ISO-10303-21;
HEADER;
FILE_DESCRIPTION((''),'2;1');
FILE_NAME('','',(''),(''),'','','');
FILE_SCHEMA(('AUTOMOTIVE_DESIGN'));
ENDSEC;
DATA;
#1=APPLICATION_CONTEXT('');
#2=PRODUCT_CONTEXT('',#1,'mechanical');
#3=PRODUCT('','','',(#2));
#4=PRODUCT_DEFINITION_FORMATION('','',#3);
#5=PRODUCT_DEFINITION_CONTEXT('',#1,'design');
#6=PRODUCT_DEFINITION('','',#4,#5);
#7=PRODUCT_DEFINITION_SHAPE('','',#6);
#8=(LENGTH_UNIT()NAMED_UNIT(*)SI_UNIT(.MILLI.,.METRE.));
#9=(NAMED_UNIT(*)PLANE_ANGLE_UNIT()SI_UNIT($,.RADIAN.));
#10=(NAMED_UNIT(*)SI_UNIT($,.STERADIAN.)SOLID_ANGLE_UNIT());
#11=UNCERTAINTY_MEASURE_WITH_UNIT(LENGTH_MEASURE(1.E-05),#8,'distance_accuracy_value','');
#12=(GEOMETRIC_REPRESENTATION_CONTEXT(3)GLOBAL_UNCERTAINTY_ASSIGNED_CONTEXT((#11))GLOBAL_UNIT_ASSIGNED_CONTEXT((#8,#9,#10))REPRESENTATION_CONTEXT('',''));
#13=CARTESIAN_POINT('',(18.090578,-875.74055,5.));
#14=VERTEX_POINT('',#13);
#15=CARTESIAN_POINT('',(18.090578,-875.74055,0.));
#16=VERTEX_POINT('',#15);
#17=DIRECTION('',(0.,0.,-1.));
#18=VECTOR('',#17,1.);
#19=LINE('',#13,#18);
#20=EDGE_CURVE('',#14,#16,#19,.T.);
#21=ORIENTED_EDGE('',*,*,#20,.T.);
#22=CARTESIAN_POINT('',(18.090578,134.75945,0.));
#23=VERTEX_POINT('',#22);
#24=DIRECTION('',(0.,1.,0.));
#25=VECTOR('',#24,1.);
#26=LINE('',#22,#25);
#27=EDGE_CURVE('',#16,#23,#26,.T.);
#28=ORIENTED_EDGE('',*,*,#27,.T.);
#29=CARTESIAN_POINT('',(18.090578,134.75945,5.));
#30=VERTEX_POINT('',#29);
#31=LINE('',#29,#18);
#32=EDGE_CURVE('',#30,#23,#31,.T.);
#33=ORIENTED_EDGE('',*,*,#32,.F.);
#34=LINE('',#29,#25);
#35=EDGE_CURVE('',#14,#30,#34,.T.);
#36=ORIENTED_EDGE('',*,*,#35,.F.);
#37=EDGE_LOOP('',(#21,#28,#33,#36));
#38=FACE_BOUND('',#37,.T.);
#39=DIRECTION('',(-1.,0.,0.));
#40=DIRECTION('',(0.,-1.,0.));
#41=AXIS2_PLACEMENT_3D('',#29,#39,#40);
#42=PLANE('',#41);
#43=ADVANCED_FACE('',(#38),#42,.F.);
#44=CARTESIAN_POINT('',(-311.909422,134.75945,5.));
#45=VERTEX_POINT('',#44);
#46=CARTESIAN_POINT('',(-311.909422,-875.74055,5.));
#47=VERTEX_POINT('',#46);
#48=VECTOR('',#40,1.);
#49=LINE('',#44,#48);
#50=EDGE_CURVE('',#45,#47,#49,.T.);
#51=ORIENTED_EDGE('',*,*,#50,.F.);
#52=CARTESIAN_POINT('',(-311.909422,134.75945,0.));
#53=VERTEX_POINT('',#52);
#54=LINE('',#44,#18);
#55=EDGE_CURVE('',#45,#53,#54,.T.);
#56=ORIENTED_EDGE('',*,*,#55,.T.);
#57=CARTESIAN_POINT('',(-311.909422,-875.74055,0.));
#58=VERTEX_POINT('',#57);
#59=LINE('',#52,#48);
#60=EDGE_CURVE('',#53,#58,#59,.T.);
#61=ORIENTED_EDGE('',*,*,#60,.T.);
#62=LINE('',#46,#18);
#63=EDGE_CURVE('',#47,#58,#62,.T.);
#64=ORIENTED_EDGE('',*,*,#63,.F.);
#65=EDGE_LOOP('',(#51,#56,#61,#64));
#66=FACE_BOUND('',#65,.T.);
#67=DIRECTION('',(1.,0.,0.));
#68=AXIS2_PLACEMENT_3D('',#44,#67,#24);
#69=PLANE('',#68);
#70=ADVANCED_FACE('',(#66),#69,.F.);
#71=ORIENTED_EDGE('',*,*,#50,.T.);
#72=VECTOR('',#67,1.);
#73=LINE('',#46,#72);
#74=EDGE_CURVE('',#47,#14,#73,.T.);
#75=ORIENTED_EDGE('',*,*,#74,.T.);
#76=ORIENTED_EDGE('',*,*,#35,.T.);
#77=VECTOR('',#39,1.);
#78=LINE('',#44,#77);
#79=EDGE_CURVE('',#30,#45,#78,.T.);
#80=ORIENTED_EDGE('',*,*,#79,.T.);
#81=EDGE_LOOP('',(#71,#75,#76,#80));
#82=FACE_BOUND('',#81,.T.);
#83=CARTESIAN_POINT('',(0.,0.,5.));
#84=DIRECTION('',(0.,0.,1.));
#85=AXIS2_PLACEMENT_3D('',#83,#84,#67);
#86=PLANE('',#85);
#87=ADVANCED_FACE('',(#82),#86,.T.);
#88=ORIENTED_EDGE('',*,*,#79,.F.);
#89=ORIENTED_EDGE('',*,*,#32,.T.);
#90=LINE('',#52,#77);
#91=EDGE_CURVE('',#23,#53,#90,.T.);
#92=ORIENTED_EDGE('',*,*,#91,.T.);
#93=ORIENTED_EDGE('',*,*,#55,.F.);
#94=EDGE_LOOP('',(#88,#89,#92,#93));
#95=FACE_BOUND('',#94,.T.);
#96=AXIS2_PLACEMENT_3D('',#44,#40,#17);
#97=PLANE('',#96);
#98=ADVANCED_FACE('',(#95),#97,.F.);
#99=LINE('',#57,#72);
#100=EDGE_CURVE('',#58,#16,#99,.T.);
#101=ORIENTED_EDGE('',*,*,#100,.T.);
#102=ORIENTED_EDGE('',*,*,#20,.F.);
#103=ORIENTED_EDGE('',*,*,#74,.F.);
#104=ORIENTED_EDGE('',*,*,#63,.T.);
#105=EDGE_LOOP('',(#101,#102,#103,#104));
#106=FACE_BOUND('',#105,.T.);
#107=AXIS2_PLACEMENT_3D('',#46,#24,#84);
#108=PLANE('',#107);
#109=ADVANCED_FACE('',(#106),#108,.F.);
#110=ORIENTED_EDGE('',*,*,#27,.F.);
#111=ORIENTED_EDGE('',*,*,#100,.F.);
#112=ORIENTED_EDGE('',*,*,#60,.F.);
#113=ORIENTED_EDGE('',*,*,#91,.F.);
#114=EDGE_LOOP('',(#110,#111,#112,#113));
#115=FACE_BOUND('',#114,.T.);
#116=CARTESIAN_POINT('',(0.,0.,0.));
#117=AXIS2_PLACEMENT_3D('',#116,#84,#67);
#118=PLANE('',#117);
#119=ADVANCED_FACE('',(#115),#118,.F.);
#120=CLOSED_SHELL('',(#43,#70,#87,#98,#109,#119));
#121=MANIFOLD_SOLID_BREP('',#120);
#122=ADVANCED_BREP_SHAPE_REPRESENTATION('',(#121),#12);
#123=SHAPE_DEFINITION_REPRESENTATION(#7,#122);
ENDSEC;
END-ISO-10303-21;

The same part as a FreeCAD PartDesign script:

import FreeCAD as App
import Part
import Sketcher
from FreeCAD import Vector


def add_polygon(sketch, points):
    """Adds a closed chain of lines whose ends are joined by coincident constraints."""
    first, n = sketch.GeometryCount, len(points)
    for a, b in zip(points, points[1:] + points[:1]):
        sketch.addGeometry(Part.LineSegment(App.Vector(*a, 0), App.Vector(*b, 0)), False)
    for i in range(n):
        sketch.addConstraint(Sketcher.Constraint("Coincident", first + i, 2, first + (i + 1) % n, 1))

doc = App.newDocument("Part")
params = doc.addObject("Spreadsheet::Sheet", "Params")
for row, (alias, value) in enumerate([
    ("sketch1_width", "330 mm"),
    ("sketch1_height", "1010.5 mm"),
    ("pad1_length", "5 mm"),
], start=1):
    params.set(f"A{row}", alias)
    params.set(f"B{row}", "=" + value)
    params.setAlias(f"B{row}", alias)

body = doc.addObject("PartDesign::Body", "Body")

# Sketch on XY plane
sketch1 = body.newObject("Sketcher::SketchObject", "Sketch")
sketch1.AttachmentSupport = (doc.getObject("XY_Plane"), [""])
sketch1.MapMode = "FlatFace"
add_polygon(sketch1, [(-312, 135), (-312, -876), (18, -876), (18, 135)])  # lines 0-3
sketch1.addConstraint(Sketcher.Constraint("Vertical", 0))
sketch1.addConstraint(Sketcher.Constraint("Horizontal", 1))
sketch1.addConstraint(Sketcher.Constraint("Vertical", 2))
sketch1.addConstraint(Sketcher.Constraint("Horizontal", 3))
sketch1.addConstraint(Sketcher.Constraint("DistanceX", 1, 1, 1, 2, 330.0))
sketch1.addConstraint(Sketcher.Constraint("DistanceY", 0, 2, 0, 1, 1010.5))
sketch1.addConstraint(Sketcher.Constraint("DistanceY", 0, 2, -1, 1, 875.74055))
sketch1.addConstraint(Sketcher.Constraint("DistanceX", 0, 2, -1, 1, 311.909422))
sketch1.setExpression("Constraints[8]", "Params.sketch1_width")
sketch1.setExpression("Constraints[9]", "Params.sketch1_height")
pad1 = body.newObject("PartDesign::Pad", "Pad")
pad1.Profile = sketch1
pad1.setExpression("Length", "Params.pad1_length")

doc.recompute()
